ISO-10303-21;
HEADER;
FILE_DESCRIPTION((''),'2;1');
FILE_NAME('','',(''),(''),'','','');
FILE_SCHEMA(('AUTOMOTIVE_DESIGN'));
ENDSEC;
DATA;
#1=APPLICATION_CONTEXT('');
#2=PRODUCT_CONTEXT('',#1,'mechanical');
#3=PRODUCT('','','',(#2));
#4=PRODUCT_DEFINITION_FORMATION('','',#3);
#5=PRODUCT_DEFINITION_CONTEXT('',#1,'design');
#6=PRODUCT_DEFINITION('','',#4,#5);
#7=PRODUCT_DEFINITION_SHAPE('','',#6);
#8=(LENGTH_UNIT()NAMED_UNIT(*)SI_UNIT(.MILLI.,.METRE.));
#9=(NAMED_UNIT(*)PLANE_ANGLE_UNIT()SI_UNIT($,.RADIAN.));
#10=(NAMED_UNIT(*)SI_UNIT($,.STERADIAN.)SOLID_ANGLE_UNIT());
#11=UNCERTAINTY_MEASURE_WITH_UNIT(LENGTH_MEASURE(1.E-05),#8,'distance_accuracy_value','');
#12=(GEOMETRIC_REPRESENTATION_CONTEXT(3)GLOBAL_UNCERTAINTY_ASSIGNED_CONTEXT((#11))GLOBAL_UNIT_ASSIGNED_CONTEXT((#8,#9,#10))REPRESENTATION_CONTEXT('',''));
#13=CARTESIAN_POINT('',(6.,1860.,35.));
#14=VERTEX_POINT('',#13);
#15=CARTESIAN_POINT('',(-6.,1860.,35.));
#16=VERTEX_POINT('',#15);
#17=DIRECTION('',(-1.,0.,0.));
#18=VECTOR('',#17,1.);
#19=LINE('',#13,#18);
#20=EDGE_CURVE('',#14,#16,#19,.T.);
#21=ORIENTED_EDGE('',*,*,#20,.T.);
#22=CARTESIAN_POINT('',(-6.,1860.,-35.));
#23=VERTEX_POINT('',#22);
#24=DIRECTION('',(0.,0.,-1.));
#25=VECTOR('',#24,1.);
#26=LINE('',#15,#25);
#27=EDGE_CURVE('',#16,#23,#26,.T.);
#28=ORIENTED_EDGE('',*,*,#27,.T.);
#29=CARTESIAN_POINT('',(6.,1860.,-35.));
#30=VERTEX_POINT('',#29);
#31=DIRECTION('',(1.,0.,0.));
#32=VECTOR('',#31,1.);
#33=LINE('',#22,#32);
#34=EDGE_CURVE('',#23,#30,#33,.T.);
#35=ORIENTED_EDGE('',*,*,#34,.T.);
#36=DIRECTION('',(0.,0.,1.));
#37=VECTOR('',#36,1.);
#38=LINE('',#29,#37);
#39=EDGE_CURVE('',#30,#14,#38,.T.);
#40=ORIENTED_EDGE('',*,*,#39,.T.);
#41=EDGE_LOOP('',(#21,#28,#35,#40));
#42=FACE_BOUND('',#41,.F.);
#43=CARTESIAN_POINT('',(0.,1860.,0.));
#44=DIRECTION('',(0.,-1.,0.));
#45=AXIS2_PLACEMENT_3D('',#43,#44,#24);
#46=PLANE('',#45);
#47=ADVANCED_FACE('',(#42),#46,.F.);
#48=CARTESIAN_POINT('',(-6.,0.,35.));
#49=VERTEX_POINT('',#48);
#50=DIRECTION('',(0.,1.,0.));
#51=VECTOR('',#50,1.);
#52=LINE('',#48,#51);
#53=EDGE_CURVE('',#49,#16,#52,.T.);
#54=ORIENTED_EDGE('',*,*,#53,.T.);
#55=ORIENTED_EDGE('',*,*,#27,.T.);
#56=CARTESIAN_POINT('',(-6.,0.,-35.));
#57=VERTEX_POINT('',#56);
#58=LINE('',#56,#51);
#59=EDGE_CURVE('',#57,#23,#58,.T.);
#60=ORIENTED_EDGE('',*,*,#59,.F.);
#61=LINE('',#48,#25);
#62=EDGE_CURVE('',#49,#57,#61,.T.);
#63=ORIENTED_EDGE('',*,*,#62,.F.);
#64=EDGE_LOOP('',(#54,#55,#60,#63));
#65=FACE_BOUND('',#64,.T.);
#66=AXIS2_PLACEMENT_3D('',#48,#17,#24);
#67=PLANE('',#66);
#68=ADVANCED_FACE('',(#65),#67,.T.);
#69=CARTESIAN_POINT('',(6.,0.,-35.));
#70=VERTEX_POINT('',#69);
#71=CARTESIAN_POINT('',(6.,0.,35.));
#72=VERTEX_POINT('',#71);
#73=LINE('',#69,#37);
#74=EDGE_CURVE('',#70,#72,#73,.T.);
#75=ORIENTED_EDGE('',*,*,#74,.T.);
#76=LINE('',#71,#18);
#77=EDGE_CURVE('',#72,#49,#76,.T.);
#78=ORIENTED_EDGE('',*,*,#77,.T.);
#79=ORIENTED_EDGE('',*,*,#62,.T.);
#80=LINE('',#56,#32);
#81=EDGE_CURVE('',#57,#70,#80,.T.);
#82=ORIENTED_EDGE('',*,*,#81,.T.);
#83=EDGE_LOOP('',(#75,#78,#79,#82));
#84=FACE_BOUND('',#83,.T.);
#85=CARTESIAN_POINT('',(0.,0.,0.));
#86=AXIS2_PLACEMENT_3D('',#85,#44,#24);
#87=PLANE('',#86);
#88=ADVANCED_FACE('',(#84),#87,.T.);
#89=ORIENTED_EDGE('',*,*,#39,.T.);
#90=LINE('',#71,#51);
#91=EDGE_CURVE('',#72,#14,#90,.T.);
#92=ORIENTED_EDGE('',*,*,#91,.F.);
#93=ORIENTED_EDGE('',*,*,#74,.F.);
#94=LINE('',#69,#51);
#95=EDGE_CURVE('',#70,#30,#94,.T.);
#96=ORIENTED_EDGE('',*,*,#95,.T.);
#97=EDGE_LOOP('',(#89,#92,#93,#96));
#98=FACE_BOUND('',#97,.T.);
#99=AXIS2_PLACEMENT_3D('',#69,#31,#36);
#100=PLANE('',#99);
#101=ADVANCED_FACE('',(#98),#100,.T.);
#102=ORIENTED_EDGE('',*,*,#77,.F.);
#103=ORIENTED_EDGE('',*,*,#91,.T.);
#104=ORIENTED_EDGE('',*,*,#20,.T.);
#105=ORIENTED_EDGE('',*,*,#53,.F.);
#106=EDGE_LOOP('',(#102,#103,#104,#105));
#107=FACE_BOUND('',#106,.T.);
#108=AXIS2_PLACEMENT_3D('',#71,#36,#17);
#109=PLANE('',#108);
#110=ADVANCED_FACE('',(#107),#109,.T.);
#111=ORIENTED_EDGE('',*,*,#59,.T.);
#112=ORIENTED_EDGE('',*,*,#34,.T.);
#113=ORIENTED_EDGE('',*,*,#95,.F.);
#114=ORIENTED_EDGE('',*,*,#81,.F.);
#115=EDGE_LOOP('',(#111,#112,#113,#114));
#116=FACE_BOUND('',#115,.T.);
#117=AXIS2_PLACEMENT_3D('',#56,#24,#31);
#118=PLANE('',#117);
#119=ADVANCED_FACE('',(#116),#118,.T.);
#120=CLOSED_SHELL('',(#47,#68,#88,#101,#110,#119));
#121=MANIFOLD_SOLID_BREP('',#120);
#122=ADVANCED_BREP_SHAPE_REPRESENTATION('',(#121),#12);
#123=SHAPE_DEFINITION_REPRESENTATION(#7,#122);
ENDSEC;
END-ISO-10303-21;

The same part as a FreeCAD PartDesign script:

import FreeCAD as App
import Part
import Sketcher
from FreeCAD import Vector


def add_polygon(sketch, points):
    """Adds a closed chain of lines whose ends are joined by coincident constraints."""
    first, n = sketch.GeometryCount, len(points)
    for a, b in zip(points, points[1:] + points[:1]):
        sketch.addGeometry(Part.LineSegment(App.Vector(*a, 0), App.Vector(*b, 0)), False)
    for i in range(n):
        sketch.addConstraint(Sketcher.Constraint("Coincident", first + i, 2, first + (i + 1) % n, 1))

doc = App.newDocument("Part")
params = doc.addObject("Spreadsheet::Sheet", "Params")
for row, (alias, value) in enumerate([
    ("sketch1_width", "12 mm"),
    ("sketch1_height", "70 mm"),
    ("pad1_length", "1860 mm"),
], start=1):
    params.set(f"A{row}", alias)
    params.set(f"B{row}", "=" + value)
    params.setAlias(f"B{row}", alias)

body = doc.addObject("PartDesign::Body", "Body")

sketch1 = body.newObject("Sketcher::SketchObject", "Sketch")
sketch1.AttachmentSupport = (doc.getObject("XZ_Plane"), [""])
sketch1.MapMode = "FlatFace"
add_polygon(sketch1, [(-6, 35), (-6, -35), (6, -35), (6, 35)])
sketch1.addConstraint([
    Sketcher.Constraint("Vertical", 0),
    Sketcher.Constraint("Horizontal", 1),
    Sketcher.Constraint("Vertical", 2),
    Sketcher.Constraint("Horizontal", 3),
    Sketcher.Constraint("Symmetric", 0, 2, 2, 2, -1, 1),
    Sketcher.Constraint("DistanceX", 1, 1, 1, 2, 12.0),
    Sketcher.Constraint("DistanceY", 0, 2, 0, 1, 70.0),
])
sketch1.setExpression("Constraints[9]", "Params.sketch1_width")
sketch1.setExpression("Constraints[10]", "Params.sketch1_height")
pad1 = body.newObject("PartDesign::Pad", "Pad")
pad1.Profile = sketch1
pad1.setExpression("Length", "Params.pad1_length")
pad1.Reversed = True

doc.recompute()
